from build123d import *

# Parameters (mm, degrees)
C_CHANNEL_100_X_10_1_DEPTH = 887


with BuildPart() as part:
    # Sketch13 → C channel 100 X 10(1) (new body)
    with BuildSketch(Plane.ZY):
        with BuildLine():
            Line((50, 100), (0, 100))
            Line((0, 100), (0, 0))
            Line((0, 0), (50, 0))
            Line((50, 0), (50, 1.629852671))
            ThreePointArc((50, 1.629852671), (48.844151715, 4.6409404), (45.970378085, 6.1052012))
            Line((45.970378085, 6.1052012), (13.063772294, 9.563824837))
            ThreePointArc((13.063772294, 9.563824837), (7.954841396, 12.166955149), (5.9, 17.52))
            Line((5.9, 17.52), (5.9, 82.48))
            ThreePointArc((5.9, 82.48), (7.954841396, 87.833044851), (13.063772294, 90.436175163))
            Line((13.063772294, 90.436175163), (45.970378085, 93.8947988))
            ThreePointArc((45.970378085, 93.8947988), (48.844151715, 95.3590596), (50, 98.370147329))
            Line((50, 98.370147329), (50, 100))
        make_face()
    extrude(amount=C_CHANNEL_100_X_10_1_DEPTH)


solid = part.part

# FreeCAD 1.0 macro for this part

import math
import FreeCAD as App
import Part
import Sketcher
Q = App.Units.Quantity

doc = App.newDocument("Part")
body = doc.addObject("PartDesign::Body", "Body")

sketch1 = doc.addObject("Sketcher::SketchObject", "Sketch")
body.addObject(sketch1)
sketch1.AttachmentSupport = (doc.YZ_Plane, [""])
sketch1.MapMode = "FlatFace"
sketch1.addGeometry(Part.LineSegment(App.Vector(100, 50, 0), App.Vector(100, 0, 0)), False)
sketch1.addGeometry(Part.LineSegment(App.Vector(100, 0, 0), App.Vector(0, 0, 0)), False)
sketch1.addGeometry(Part.LineSegment(App.Vector(0, 0, 0), App.Vector(0, 50, 0)), False)
sketch1.addGeometry(Part.LineSegment(App.Vector(0, 50, 0), App.Vector(1.6, 50, 0)), False)
sketch1.addGeometry(Part.ArcOfCircle(Part.Circle(App.Vector(1.6, 45.5, 0), App.Vector(0, 0, 1), 4.5), math.radians(6), math.radians(90)), False)
sketch1.addGeometry(Part.LineSegment(App.Vector(6.1, 46, 0), App.Vector(9.6, 13.1, 0)), False)
sketch1.addGeometry(Part.ArcOfCircle(Part.Circle(App.Vector(17.5, 13.9, 0), App.Vector(0, 0, 1), 8), math.radians(-174), math.radians(-90)), False)
sketch1.addGeometry(Part.LineSegment(App.Vector(17.5, 5.9, 0), App.Vector(82.5, 5.9, 0)), False)
sketch1.addGeometry(Part.ArcOfCircle(Part.Circle(App.Vector(82.5, 13.9, 0), App.Vector(0, 0, 1), 8), math.radians(-90), math.radians(-6)), False)
sketch1.addGeometry(Part.LineSegment(App.Vector(90.4, 13.1, 0), App.Vector(93.9, 46, 0)), False)
sketch1.addGeometry(Part.ArcOfCircle(Part.Circle(App.Vector(98.4, 45.5, 0), App.Vector(0, 0, 1), 4.5), math.radians(90), math.radians(174)), False)
sketch1.addGeometry(Part.LineSegment(App.Vector(98.4, 50, 0), App.Vector(100, 50, 0)), False)
sketch1.addConstraint(Sketcher.Constraint("Coincident", 0, 2, 1, 1))
sketch1.addConstraint(Sketcher.Constraint("Coincident", 1, 2, 2, 1))
sketch1.addConstraint(Sketcher.Constraint("Coincident", 2, 2, 3, 1))
sketch1.addConstraint(Sketcher.Constraint("Tangent", 3, 2, 4, 2))
sketch1.addConstraint(Sketcher.Constraint("Tangent", 4, 1, 5, 1))
sketch1.addConstraint(Sketcher.Constraint("Tangent", 5, 2, 6, 1))
sketch1.addConstraint(Sketcher.Constraint("Tangent", 6, 2, 7, 1))
sketch1.addConstraint(Sketcher.Constraint("Tangent", 7, 2, 8, 1))
sketch1.addConstraint(Sketcher.Constraint("Tangent", 8, 2, 9, 1))
sketch1.addConstraint(Sketcher.Constraint("Tangent", 9, 2, 10, 2))
sketch1.addConstraint(Sketcher.Constraint("Tangent", 10, 1, 11, 1))
sketch1.addConstraint(Sketcher.Constraint("Coincident", 11, 2, 0, 1))
sketch1.addConstraint(Sketcher.Constraint("Vertical", 0))
sketch1.addConstraint(Sketcher.Constraint("Horizontal", 1))
sketch1.addConstraint(Sketcher.Constraint("Vertical", 2))
sketch1.addConstraint(Sketcher.Constraint("Horizontal", 3))
sketch1.addConstraint(Sketcher.Constraint("Horizontal", 7))
sketch1.addConstraint(Sketcher.Constraint("Horizontal", 11))
sketch1.addConstraint(Sketcher.Constraint("Coincident", 1, 2, -1, 1))
sketch1.addConstraint(Sketcher.Constraint("Equal", 6, 8))
sketch1.addConstraint(Sketcher.Constraint("Equal", 4, 10))
sketch1.addConstraint(Sketcher.Constraint("Horizontal", 4, 3, 10, 3))
sketch1.addConstraint(Sketcher.Constraint("Horizontal", 5, 2, 8, 2))
sketch1.addConstraint(Sketcher.Constraint("Equal", 3, 11))
sketch1.addConstraint(Sketcher.Constraint("Radius", 6, 8.0))
sketch1.addConstraint(Sketcher.Constraint("Radius", 4, 4.5))
sketch1.addConstraint(Sketcher.Constraint("DistanceX", 1, 2, 1, 1, 100.0))
sketch1.addConstraint(Sketcher.Constraint("DistanceY", 0, 2, 0, 1, 50.0))
sketch1.addConstraint(Sketcher.Constraint("Angle", 5, Q("-84 deg")))
sketch1.addConstraint(Sketcher.Constraint("DistanceX", 7, 1, 7, 2, 64.96))
sketch1.addConstraint(Sketcher.Constraint("DistanceY", -1, 1, 6, 3, 13.9))
pad1 = doc.addObject("PartDesign::Pad", "Pad")
body.addObject(pad1)
pad1.Profile = sketch1
pad1.Length = 887
pad1.Reversed = True

doc.recompute()
